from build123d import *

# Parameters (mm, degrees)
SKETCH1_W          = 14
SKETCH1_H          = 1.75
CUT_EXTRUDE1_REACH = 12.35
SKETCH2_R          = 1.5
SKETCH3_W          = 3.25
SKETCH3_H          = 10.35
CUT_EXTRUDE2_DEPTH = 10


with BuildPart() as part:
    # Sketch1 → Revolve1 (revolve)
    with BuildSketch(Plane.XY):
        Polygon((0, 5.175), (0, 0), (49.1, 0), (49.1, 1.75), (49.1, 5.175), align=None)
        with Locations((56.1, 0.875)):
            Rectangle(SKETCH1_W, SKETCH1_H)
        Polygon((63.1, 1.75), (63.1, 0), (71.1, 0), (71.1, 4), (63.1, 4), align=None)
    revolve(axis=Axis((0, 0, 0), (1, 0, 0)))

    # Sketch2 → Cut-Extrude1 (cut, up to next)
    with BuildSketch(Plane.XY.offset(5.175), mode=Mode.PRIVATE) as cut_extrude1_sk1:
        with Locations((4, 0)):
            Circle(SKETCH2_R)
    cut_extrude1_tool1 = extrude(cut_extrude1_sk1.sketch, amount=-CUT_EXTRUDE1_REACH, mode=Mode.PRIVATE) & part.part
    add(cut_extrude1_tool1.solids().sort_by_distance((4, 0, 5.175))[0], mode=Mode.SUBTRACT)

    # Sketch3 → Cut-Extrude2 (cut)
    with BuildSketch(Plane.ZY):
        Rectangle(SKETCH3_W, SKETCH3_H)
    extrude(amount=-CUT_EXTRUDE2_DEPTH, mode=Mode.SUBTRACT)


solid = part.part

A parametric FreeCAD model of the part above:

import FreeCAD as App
import Part
import Sketcher
from FreeCAD import Vector


def add_polygon(sketch, points):
    """Adds a closed chain of lines whose ends are joined by coincident constraints."""
    first, n = sketch.GeometryCount, len(points)
    for a, b in zip(points, points[1:] + points[:1]):
        sketch.addGeometry(Part.LineSegment(App.Vector(*a, 0), App.Vector(*b, 0)), False)
    for i in range(n):
        sketch.addConstraint(Sketcher.Constraint("Coincident", first + i, 2, first + (i + 1) % n, 1))

doc = App.newDocument("Part")
body = doc.addObject("PartDesign::Body", "Body")

sketch1 = body.newObject("Sketcher::SketchObject", "Sketch")
sketch1.AttachmentSupport = (doc.getObject("XY_Plane"), [""])
sketch1.MapMode = "FlatFace"
add_polygon(sketch1, [(0, 5.2), (0, 0), (71.1, 0), (71.1, 4), (63.1, 4), (63.1, 1.8), (49.1, 1.8), (49.1, 5.2)])
sketch1.addConstraint([
    Sketcher.Constraint("Vertical", 0),
    Sketcher.Constraint("Horizontal", 1),
    Sketcher.Constraint("Vertical", 2),
    Sketcher.Constraint("Horizontal", 3),
    Sketcher.Constraint("Vertical", 4),
    Sketcher.Constraint("Horizontal", 5),
    Sketcher.Constraint("Vertical", 6),
    Sketcher.Constraint("Horizontal", 7),
    Sketcher.Constraint("Coincident", 0, 2, -1, 1),
    Sketcher.Constraint("DistanceX", 3, 2, 3, 1, 8.0),
    Sketcher.Constraint("DistanceX", 5, 2, 5, 1, 14.0),
    Sketcher.Constraint("DistanceY", 2, 1, 2, 2, 4.0),
    Sketcher.Constraint("DistanceX", 1, 1, 1, 2, 71.1),
    Sketcher.Constraint("DistanceY", 4, 2, 4, 1, 2.25),
    Sketcher.Constraint("DistanceY", 0, 2, 0, 1, 5.175),
])
revolution = body.newObject("PartDesign::Revolution", "Revolution")
revolution.Profile = sketch1
revolution.ReferenceAxis = (sketch1, ["H_Axis"])
revolution.Angle = 360

sketch2 = body.newObject("Sketcher::SketchObject", "Sketch001")
sketch2.AttachmentSupport = (doc.getObject("XY_Plane"), [""])
sketch2.MapMode = "FlatFace"
sketch2.AttachmentOffset = App.Placement(Vector(0, 0, 5.175), App.Rotation())
sketch2.addGeometry(Part.Circle(Vector(4, 0, 0), Vector(0, 0, 1), 1.5), False)
sketch2.addConstraint([
    Sketcher.Constraint("PointOnObject", 0, 3, -1),
    Sketcher.Constraint("Diameter", 0, 3.0),
    Sketcher.Constraint("DistanceX", -1, 1, 0, 3, 4.0),
])
pocket1 = body.newObject("PartDesign::Pocket", "Pocket")
pocket1.Profile = sketch2
pocket1.Length = 10.35

sketch3 = body.newObject("Sketcher::SketchObject", "Sketch002")
sketch3.AttachmentSupport = (doc.getObject("YZ_Plane"), [""])
sketch3.MapMode = "FlatFace"
add_polygon(sketch3, [(5.2, -1.6), (-5.2, -1.6), (-5.2, 1.6), (5.2, 1.6)])
sketch3.addConstraint([
    Sketcher.Constraint("Horizontal", 0),
    Sketcher.Constraint("Vertical", 1),
    Sketcher.Constraint("Horizontal", 2),
    Sketcher.Constraint("Vertical", 3),
    Sketcher.Constraint("Symmetric", 0, 2, 2, 2, -1, 1),
    Sketcher.Constraint("DistanceX", 0, 2, 0, 1, 10.35),
    Sketcher.Constraint("DistanceY", 1, 1, 1, 2, 3.25),
])
pocket2 = body.newObject("PartDesign::Pocket", "Pocket001")
pocket2.Profile = sketch3
pocket2.Length = 10
pocket2.Reversed = True

doc.recompute()
